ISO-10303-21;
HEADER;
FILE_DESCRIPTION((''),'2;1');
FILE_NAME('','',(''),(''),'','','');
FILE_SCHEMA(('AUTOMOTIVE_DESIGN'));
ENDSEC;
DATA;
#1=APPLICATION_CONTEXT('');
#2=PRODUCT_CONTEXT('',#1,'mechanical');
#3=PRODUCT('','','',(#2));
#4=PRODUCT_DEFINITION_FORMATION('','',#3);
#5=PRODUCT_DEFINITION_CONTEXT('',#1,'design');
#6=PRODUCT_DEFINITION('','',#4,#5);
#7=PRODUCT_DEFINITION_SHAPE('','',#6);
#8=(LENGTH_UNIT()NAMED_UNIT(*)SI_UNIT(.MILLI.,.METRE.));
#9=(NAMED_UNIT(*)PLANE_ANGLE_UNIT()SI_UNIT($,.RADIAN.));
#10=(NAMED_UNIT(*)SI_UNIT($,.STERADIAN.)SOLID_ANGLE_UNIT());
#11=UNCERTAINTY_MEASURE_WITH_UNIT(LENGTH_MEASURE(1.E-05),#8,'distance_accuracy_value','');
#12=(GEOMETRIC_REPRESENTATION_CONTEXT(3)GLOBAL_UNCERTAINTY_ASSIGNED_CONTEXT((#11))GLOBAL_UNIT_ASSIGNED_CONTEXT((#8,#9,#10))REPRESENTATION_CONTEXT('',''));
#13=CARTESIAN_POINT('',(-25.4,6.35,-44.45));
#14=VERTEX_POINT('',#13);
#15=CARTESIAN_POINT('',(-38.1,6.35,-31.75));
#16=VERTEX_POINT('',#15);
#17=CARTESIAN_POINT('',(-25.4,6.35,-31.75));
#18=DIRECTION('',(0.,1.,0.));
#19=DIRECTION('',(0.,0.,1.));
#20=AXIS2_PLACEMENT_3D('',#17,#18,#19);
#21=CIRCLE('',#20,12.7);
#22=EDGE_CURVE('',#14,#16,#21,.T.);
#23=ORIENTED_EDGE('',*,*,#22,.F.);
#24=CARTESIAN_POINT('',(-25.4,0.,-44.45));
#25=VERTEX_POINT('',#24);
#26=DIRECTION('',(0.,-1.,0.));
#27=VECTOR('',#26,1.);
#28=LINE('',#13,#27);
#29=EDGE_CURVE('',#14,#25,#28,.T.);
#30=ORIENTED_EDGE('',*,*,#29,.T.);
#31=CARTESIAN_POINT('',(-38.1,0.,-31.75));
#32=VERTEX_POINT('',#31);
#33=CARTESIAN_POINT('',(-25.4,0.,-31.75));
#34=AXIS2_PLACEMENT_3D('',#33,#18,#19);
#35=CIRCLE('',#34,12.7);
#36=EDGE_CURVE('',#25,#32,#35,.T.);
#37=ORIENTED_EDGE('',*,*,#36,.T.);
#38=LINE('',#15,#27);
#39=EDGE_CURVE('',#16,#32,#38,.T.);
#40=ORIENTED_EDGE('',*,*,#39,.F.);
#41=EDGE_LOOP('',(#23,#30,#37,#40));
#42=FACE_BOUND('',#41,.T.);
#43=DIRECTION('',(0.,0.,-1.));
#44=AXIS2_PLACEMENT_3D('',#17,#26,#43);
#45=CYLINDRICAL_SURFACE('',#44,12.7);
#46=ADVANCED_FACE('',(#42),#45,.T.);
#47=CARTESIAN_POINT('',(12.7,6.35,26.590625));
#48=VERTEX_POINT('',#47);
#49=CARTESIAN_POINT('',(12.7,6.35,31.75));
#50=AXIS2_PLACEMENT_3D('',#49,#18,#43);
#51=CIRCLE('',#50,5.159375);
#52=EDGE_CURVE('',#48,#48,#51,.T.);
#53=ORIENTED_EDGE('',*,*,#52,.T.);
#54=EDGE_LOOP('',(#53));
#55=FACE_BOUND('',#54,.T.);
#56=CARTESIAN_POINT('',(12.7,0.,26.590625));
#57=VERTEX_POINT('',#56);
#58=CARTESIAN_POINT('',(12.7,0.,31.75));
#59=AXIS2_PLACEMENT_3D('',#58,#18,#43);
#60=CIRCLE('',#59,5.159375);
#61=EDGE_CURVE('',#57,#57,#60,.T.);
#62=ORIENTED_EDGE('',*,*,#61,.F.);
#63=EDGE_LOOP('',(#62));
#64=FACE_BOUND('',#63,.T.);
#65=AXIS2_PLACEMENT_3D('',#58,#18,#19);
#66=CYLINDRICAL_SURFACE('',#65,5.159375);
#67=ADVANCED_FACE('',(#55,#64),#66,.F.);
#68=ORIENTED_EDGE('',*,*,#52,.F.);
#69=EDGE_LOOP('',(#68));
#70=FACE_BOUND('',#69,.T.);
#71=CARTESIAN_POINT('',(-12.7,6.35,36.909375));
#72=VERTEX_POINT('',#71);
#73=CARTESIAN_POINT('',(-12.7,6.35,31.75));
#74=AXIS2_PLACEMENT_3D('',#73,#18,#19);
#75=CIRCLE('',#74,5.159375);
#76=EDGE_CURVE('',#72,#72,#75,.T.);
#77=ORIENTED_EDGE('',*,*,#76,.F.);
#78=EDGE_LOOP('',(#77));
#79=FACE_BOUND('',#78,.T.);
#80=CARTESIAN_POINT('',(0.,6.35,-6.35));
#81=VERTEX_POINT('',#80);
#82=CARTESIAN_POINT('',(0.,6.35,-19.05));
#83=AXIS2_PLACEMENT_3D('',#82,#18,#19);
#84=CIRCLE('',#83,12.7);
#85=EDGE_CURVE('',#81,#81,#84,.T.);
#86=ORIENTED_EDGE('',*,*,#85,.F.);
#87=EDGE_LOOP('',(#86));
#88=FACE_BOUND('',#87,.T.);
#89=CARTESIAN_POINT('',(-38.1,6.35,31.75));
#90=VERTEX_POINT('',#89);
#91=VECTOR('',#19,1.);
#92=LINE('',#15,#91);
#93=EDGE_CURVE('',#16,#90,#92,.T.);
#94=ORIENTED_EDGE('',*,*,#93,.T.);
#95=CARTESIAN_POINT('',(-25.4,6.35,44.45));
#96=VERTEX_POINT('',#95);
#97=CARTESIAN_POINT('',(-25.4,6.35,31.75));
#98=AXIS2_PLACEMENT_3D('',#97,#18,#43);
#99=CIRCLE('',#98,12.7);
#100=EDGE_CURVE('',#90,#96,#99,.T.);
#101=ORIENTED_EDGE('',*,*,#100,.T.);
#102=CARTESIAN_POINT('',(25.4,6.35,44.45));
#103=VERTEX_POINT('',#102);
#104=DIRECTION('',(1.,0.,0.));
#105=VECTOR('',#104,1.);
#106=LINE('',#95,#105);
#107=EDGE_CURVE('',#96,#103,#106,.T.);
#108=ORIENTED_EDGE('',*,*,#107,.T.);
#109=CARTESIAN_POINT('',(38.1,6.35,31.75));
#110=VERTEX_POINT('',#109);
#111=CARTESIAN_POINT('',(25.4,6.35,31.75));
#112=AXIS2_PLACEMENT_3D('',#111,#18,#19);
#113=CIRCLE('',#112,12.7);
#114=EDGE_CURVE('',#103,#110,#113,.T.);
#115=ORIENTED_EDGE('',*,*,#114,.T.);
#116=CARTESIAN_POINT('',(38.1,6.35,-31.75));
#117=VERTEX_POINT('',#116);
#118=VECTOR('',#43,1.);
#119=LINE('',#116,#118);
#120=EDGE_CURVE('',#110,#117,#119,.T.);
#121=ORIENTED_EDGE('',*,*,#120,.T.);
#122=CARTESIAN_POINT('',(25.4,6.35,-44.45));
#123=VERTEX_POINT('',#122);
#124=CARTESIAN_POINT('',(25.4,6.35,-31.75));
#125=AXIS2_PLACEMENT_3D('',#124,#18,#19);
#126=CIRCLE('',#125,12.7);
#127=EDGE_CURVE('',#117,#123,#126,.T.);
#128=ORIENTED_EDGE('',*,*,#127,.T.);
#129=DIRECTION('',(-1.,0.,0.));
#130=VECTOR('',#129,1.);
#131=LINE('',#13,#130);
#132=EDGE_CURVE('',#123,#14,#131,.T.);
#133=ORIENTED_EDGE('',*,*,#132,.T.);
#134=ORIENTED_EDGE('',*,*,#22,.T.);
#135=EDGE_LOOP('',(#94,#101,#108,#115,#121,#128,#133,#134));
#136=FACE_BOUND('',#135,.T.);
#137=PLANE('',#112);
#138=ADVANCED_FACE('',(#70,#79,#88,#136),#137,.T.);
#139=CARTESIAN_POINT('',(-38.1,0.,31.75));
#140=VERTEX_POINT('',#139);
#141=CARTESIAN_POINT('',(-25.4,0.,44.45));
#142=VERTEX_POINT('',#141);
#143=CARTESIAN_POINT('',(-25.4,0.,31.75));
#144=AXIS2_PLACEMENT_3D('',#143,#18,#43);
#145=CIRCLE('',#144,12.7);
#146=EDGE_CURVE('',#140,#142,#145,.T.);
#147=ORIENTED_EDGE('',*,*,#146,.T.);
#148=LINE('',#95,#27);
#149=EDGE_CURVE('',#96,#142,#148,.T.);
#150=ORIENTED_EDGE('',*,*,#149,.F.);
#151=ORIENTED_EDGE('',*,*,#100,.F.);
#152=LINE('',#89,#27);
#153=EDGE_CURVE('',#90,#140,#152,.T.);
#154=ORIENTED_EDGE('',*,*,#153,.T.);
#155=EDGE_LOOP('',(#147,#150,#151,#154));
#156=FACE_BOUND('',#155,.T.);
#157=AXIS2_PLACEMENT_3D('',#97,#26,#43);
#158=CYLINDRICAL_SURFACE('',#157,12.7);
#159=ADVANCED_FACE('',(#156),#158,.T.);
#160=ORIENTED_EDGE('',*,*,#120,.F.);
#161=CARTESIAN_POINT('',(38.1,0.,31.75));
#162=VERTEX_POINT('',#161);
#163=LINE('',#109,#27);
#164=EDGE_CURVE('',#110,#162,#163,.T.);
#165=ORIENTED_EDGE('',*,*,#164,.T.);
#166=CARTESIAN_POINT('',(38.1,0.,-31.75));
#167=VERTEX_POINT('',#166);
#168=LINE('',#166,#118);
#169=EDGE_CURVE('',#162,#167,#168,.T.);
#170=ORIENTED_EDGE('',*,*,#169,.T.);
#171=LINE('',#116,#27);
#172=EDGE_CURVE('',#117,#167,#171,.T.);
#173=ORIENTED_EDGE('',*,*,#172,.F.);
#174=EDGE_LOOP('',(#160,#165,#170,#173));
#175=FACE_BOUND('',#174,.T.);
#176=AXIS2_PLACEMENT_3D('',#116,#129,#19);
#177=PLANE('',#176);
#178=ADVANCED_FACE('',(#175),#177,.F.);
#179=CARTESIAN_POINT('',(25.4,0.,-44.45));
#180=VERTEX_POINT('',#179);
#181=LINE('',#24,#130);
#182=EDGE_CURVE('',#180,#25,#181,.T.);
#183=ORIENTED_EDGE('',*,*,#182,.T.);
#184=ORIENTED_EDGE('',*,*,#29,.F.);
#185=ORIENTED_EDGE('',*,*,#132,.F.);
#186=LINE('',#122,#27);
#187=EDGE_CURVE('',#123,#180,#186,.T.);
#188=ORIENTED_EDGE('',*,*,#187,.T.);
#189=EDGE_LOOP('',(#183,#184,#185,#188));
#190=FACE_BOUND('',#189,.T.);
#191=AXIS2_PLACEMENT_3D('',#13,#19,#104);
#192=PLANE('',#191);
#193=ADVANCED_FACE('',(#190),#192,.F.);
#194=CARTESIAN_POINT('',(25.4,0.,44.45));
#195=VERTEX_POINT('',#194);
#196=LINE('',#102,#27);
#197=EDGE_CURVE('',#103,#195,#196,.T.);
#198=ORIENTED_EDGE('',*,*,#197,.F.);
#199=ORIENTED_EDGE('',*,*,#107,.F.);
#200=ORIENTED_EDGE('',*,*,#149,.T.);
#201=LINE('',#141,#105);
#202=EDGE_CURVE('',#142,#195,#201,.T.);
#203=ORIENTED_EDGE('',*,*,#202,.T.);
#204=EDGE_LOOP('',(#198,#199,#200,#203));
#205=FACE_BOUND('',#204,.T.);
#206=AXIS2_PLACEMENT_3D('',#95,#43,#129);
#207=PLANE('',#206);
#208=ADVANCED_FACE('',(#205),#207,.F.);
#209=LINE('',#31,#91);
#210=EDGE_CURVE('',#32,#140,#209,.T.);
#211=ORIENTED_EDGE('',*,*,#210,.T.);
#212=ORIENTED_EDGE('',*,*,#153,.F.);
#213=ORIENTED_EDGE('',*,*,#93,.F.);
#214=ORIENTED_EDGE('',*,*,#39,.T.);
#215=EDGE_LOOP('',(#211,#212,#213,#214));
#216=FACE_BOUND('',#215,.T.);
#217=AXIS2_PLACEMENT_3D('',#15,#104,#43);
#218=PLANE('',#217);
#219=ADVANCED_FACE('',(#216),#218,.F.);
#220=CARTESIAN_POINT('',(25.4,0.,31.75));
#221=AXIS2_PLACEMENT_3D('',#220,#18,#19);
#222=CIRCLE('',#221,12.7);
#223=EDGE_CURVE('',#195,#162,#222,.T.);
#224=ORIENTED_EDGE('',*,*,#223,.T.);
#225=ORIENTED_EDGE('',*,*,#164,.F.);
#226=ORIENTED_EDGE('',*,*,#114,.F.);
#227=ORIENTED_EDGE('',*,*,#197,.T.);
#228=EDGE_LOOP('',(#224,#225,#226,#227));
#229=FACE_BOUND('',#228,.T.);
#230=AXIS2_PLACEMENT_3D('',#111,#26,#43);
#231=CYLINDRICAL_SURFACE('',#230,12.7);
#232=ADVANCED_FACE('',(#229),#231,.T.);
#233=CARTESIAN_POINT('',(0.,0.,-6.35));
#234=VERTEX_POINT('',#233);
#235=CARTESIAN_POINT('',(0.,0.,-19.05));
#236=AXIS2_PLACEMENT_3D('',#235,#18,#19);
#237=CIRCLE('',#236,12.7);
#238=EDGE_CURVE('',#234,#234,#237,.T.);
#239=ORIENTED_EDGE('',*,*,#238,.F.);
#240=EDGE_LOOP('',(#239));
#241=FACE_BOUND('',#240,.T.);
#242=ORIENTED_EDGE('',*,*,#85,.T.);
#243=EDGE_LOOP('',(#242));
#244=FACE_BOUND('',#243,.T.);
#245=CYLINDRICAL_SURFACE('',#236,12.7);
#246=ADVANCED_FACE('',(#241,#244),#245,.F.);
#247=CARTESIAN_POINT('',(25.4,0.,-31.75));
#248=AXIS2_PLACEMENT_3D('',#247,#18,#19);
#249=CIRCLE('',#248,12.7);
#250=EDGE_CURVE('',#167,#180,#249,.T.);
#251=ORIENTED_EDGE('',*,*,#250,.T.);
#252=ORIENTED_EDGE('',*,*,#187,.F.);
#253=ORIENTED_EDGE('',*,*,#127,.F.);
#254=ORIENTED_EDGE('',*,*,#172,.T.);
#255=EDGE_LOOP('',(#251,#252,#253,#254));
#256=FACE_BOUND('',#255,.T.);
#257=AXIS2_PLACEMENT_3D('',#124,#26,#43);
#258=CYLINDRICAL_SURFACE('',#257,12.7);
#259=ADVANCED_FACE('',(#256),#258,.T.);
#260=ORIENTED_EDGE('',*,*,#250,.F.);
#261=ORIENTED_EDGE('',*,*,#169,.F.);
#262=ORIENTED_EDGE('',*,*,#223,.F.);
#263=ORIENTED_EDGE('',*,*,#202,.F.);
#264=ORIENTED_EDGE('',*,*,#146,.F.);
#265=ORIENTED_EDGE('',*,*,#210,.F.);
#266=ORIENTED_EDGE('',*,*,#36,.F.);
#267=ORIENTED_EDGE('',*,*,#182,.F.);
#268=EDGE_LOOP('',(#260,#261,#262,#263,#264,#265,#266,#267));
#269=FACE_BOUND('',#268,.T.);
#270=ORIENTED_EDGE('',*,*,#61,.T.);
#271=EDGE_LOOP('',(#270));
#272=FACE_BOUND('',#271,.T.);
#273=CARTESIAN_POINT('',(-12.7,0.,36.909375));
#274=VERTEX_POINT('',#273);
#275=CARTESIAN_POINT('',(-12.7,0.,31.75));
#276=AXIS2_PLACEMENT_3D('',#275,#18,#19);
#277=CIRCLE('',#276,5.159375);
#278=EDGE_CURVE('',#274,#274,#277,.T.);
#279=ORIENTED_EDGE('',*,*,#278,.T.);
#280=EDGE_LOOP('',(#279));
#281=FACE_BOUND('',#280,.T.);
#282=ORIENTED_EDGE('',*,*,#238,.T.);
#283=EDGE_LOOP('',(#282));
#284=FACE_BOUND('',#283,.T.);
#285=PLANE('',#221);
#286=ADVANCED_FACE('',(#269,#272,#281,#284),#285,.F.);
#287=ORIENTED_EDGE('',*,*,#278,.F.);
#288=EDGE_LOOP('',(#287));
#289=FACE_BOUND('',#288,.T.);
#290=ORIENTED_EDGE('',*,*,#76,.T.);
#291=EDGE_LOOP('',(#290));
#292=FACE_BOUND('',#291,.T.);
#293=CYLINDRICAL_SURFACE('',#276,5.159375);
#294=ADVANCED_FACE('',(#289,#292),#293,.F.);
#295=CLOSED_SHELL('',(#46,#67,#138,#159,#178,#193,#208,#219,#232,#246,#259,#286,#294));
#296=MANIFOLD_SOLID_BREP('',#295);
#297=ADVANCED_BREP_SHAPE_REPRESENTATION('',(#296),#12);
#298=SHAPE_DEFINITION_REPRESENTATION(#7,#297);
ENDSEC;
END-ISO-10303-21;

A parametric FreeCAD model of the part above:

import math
import FreeCAD as App
import Part
import Sketcher
Q = App.Units.Quantity

doc = App.newDocument("Part")
params = doc.addObject("Spreadsheet::Sheet", "Params")
for row, (alias, value) in enumerate([
    ("sketch1_radius", "0.5 in"),
    ("sketch1_width", "2 in"),
    ("sketch1_height", "2.5 in"),
    ("pad1_length", "0.25 in"),
    ("sketch2_diameter", "1 in"),
    ("sketch2_diameter2", "0.40625 in"),
], start=1):
    params.set(f"A{row}", alias)
    params.set(f"B{row}", "=" + value)
    params.setAlias(f"B{row}", alias)

body = doc.addObject("PartDesign::Body", "Body")

sketch1 = body.newObject("Sketcher::SketchObject", "Sketch")
sketch1.AttachmentSupport = (doc.getObject("XZ_Plane"), [""])
sketch1.MapMode = "FlatFace"
sketch1.addGeometry([
    Part.LineSegment(App.Vector(25.4, -44.45, 0), App.Vector(-25.4, -44.45, 0)),
    Part.ArcOfCircle(Part.Circle(App.Vector(-25.4, -31.75, 0), App.Vector(0, 0, 1), 12.7), math.radians(180), math.radians(270)),
    Part.LineSegment(App.Vector(-38.1, -31.75, 0), App.Vector(-38.1, 31.75, 0)),
    Part.ArcOfCircle(Part.Circle(App.Vector(-25.4, 31.75, 0), App.Vector(0, 0, 1), 12.7), math.radians(90), math.radians(180)),
    Part.LineSegment(App.Vector(-25.4, 44.45, 0), App.Vector(25.4, 44.45, 0)),
    Part.ArcOfCircle(Part.Circle(App.Vector(25.4, 31.75, 0), App.Vector(0, 0, 1), 12.7), math.radians(0), math.radians(90)),
    Part.LineSegment(App.Vector(38.1, 31.75, 0), App.Vector(38.1, -31.75, 0)),
    Part.ArcOfCircle(Part.Circle(App.Vector(25.4, -31.75, 0), App.Vector(0, 0, 1), 12.7), math.radians(-90), math.radians(0)),
], False)
sketch1.addConstraint([
    Sketcher.Constraint("Tangent", 0, 2, 1, 2),
    Sketcher.Constraint("Tangent", 1, 1, 2, 1),
    Sketcher.Constraint("Tangent", 2, 2, 3, 2),
    Sketcher.Constraint("Tangent", 3, 1, 4, 1),
    Sketcher.Constraint("Tangent", 4, 2, 5, 2),
    Sketcher.Constraint("Tangent", 5, 1, 6, 1),
    Sketcher.Constraint("Tangent", 6, 2, 7, 2),
    Sketcher.Constraint("Tangent", 7, 1, 0, 1),
    Sketcher.Constraint("Horizontal", 0),
    Sketcher.Constraint("Vertical", 2),
    Sketcher.Constraint("Horizontal", 4),
    Sketcher.Constraint("Vertical", 6),
    Sketcher.Constraint("Equal", 1, 3),
    Sketcher.Constraint("Equal", 3, 5),
    Sketcher.Constraint("Equal", 5, 7),
    Sketcher.Constraint("Symmetric", 1, 3, 5, 3, -1, 1),
    Sketcher.Constraint("Radius", 1, Q("0.5 in")),
    Sketcher.Constraint("DistanceX", 0, 2, 0, 1, Q("2 in")),
    Sketcher.Constraint("DistanceY", 2, 1, 2, 2, Q("2.5 in")),
])
sketch1.setExpression("Constraints[16]", "Params.sketch1_radius")
sketch1.setExpression("Constraints[17]", "Params.sketch1_width")
sketch1.setExpression("Constraints[18]", "Params.sketch1_height")
pad1 = body.newObject("PartDesign::Pad", "Pad")
pad1.Profile = sketch1
pad1.setExpression("Length", "Params.pad1_length")
pad1.Reversed = True

sketch2 = body.newObject("Sketcher::SketchObject", "Sketch001")
sketch2.AttachmentSupport = (doc.getObject("XZ_Plane"), [""])
sketch2.MapMode = "FlatFace"
sketch2.AttachmentOffset = App.Placement(App.Vector(0, 0, -0.25 * 25.4), App.Rotation())
sketch2.addGeometry([
    Part.Circle(App.Vector(0, -19.05, 0), App.Vector(0, 0, 1), 12.7),
    Part.Circle(App.Vector(-12.7, 31.75, 0), App.Vector(0, 0, 1), 5.159375),
    Part.Circle(App.Vector(12.7, 31.75, 0), App.Vector(0, 0, 1), 5.159375),
], False)
sketch2.addConstraint([
    Sketcher.Constraint("Equal", 1, 2),
    Sketcher.Constraint("Symmetric", 1, 3, 2, 3, -2),
    Sketcher.Constraint("PointOnObject", 0, 3, -2),
    Sketcher.Constraint("Diameter", 0, Q("1 in")),
    Sketcher.Constraint("Diameter", 1, Q("0.40625 in")),
    Sketcher.Constraint("DistanceY", 0, 3, 1, 3, Q("2 in")),
    Sketcher.Constraint("DistanceX", 1, 3, 2, 3, Q("1 in")),
    Sketcher.Constraint("DistanceY", 0, 3, -1, 1, Q("0.75 in")),
])
sketch2.setExpression("Constraints[3]", "Params.sketch2_diameter")
sketch2.setExpression("Constraints[4]", "Params.sketch2_diameter2")
pocket1 = body.newObject("PartDesign::Pocket", "Pocket")
pocket1.Profile = sketch2
pocket1.Type = "ThroughAll"
pocket1.Reversed = True

doc.recompute()
